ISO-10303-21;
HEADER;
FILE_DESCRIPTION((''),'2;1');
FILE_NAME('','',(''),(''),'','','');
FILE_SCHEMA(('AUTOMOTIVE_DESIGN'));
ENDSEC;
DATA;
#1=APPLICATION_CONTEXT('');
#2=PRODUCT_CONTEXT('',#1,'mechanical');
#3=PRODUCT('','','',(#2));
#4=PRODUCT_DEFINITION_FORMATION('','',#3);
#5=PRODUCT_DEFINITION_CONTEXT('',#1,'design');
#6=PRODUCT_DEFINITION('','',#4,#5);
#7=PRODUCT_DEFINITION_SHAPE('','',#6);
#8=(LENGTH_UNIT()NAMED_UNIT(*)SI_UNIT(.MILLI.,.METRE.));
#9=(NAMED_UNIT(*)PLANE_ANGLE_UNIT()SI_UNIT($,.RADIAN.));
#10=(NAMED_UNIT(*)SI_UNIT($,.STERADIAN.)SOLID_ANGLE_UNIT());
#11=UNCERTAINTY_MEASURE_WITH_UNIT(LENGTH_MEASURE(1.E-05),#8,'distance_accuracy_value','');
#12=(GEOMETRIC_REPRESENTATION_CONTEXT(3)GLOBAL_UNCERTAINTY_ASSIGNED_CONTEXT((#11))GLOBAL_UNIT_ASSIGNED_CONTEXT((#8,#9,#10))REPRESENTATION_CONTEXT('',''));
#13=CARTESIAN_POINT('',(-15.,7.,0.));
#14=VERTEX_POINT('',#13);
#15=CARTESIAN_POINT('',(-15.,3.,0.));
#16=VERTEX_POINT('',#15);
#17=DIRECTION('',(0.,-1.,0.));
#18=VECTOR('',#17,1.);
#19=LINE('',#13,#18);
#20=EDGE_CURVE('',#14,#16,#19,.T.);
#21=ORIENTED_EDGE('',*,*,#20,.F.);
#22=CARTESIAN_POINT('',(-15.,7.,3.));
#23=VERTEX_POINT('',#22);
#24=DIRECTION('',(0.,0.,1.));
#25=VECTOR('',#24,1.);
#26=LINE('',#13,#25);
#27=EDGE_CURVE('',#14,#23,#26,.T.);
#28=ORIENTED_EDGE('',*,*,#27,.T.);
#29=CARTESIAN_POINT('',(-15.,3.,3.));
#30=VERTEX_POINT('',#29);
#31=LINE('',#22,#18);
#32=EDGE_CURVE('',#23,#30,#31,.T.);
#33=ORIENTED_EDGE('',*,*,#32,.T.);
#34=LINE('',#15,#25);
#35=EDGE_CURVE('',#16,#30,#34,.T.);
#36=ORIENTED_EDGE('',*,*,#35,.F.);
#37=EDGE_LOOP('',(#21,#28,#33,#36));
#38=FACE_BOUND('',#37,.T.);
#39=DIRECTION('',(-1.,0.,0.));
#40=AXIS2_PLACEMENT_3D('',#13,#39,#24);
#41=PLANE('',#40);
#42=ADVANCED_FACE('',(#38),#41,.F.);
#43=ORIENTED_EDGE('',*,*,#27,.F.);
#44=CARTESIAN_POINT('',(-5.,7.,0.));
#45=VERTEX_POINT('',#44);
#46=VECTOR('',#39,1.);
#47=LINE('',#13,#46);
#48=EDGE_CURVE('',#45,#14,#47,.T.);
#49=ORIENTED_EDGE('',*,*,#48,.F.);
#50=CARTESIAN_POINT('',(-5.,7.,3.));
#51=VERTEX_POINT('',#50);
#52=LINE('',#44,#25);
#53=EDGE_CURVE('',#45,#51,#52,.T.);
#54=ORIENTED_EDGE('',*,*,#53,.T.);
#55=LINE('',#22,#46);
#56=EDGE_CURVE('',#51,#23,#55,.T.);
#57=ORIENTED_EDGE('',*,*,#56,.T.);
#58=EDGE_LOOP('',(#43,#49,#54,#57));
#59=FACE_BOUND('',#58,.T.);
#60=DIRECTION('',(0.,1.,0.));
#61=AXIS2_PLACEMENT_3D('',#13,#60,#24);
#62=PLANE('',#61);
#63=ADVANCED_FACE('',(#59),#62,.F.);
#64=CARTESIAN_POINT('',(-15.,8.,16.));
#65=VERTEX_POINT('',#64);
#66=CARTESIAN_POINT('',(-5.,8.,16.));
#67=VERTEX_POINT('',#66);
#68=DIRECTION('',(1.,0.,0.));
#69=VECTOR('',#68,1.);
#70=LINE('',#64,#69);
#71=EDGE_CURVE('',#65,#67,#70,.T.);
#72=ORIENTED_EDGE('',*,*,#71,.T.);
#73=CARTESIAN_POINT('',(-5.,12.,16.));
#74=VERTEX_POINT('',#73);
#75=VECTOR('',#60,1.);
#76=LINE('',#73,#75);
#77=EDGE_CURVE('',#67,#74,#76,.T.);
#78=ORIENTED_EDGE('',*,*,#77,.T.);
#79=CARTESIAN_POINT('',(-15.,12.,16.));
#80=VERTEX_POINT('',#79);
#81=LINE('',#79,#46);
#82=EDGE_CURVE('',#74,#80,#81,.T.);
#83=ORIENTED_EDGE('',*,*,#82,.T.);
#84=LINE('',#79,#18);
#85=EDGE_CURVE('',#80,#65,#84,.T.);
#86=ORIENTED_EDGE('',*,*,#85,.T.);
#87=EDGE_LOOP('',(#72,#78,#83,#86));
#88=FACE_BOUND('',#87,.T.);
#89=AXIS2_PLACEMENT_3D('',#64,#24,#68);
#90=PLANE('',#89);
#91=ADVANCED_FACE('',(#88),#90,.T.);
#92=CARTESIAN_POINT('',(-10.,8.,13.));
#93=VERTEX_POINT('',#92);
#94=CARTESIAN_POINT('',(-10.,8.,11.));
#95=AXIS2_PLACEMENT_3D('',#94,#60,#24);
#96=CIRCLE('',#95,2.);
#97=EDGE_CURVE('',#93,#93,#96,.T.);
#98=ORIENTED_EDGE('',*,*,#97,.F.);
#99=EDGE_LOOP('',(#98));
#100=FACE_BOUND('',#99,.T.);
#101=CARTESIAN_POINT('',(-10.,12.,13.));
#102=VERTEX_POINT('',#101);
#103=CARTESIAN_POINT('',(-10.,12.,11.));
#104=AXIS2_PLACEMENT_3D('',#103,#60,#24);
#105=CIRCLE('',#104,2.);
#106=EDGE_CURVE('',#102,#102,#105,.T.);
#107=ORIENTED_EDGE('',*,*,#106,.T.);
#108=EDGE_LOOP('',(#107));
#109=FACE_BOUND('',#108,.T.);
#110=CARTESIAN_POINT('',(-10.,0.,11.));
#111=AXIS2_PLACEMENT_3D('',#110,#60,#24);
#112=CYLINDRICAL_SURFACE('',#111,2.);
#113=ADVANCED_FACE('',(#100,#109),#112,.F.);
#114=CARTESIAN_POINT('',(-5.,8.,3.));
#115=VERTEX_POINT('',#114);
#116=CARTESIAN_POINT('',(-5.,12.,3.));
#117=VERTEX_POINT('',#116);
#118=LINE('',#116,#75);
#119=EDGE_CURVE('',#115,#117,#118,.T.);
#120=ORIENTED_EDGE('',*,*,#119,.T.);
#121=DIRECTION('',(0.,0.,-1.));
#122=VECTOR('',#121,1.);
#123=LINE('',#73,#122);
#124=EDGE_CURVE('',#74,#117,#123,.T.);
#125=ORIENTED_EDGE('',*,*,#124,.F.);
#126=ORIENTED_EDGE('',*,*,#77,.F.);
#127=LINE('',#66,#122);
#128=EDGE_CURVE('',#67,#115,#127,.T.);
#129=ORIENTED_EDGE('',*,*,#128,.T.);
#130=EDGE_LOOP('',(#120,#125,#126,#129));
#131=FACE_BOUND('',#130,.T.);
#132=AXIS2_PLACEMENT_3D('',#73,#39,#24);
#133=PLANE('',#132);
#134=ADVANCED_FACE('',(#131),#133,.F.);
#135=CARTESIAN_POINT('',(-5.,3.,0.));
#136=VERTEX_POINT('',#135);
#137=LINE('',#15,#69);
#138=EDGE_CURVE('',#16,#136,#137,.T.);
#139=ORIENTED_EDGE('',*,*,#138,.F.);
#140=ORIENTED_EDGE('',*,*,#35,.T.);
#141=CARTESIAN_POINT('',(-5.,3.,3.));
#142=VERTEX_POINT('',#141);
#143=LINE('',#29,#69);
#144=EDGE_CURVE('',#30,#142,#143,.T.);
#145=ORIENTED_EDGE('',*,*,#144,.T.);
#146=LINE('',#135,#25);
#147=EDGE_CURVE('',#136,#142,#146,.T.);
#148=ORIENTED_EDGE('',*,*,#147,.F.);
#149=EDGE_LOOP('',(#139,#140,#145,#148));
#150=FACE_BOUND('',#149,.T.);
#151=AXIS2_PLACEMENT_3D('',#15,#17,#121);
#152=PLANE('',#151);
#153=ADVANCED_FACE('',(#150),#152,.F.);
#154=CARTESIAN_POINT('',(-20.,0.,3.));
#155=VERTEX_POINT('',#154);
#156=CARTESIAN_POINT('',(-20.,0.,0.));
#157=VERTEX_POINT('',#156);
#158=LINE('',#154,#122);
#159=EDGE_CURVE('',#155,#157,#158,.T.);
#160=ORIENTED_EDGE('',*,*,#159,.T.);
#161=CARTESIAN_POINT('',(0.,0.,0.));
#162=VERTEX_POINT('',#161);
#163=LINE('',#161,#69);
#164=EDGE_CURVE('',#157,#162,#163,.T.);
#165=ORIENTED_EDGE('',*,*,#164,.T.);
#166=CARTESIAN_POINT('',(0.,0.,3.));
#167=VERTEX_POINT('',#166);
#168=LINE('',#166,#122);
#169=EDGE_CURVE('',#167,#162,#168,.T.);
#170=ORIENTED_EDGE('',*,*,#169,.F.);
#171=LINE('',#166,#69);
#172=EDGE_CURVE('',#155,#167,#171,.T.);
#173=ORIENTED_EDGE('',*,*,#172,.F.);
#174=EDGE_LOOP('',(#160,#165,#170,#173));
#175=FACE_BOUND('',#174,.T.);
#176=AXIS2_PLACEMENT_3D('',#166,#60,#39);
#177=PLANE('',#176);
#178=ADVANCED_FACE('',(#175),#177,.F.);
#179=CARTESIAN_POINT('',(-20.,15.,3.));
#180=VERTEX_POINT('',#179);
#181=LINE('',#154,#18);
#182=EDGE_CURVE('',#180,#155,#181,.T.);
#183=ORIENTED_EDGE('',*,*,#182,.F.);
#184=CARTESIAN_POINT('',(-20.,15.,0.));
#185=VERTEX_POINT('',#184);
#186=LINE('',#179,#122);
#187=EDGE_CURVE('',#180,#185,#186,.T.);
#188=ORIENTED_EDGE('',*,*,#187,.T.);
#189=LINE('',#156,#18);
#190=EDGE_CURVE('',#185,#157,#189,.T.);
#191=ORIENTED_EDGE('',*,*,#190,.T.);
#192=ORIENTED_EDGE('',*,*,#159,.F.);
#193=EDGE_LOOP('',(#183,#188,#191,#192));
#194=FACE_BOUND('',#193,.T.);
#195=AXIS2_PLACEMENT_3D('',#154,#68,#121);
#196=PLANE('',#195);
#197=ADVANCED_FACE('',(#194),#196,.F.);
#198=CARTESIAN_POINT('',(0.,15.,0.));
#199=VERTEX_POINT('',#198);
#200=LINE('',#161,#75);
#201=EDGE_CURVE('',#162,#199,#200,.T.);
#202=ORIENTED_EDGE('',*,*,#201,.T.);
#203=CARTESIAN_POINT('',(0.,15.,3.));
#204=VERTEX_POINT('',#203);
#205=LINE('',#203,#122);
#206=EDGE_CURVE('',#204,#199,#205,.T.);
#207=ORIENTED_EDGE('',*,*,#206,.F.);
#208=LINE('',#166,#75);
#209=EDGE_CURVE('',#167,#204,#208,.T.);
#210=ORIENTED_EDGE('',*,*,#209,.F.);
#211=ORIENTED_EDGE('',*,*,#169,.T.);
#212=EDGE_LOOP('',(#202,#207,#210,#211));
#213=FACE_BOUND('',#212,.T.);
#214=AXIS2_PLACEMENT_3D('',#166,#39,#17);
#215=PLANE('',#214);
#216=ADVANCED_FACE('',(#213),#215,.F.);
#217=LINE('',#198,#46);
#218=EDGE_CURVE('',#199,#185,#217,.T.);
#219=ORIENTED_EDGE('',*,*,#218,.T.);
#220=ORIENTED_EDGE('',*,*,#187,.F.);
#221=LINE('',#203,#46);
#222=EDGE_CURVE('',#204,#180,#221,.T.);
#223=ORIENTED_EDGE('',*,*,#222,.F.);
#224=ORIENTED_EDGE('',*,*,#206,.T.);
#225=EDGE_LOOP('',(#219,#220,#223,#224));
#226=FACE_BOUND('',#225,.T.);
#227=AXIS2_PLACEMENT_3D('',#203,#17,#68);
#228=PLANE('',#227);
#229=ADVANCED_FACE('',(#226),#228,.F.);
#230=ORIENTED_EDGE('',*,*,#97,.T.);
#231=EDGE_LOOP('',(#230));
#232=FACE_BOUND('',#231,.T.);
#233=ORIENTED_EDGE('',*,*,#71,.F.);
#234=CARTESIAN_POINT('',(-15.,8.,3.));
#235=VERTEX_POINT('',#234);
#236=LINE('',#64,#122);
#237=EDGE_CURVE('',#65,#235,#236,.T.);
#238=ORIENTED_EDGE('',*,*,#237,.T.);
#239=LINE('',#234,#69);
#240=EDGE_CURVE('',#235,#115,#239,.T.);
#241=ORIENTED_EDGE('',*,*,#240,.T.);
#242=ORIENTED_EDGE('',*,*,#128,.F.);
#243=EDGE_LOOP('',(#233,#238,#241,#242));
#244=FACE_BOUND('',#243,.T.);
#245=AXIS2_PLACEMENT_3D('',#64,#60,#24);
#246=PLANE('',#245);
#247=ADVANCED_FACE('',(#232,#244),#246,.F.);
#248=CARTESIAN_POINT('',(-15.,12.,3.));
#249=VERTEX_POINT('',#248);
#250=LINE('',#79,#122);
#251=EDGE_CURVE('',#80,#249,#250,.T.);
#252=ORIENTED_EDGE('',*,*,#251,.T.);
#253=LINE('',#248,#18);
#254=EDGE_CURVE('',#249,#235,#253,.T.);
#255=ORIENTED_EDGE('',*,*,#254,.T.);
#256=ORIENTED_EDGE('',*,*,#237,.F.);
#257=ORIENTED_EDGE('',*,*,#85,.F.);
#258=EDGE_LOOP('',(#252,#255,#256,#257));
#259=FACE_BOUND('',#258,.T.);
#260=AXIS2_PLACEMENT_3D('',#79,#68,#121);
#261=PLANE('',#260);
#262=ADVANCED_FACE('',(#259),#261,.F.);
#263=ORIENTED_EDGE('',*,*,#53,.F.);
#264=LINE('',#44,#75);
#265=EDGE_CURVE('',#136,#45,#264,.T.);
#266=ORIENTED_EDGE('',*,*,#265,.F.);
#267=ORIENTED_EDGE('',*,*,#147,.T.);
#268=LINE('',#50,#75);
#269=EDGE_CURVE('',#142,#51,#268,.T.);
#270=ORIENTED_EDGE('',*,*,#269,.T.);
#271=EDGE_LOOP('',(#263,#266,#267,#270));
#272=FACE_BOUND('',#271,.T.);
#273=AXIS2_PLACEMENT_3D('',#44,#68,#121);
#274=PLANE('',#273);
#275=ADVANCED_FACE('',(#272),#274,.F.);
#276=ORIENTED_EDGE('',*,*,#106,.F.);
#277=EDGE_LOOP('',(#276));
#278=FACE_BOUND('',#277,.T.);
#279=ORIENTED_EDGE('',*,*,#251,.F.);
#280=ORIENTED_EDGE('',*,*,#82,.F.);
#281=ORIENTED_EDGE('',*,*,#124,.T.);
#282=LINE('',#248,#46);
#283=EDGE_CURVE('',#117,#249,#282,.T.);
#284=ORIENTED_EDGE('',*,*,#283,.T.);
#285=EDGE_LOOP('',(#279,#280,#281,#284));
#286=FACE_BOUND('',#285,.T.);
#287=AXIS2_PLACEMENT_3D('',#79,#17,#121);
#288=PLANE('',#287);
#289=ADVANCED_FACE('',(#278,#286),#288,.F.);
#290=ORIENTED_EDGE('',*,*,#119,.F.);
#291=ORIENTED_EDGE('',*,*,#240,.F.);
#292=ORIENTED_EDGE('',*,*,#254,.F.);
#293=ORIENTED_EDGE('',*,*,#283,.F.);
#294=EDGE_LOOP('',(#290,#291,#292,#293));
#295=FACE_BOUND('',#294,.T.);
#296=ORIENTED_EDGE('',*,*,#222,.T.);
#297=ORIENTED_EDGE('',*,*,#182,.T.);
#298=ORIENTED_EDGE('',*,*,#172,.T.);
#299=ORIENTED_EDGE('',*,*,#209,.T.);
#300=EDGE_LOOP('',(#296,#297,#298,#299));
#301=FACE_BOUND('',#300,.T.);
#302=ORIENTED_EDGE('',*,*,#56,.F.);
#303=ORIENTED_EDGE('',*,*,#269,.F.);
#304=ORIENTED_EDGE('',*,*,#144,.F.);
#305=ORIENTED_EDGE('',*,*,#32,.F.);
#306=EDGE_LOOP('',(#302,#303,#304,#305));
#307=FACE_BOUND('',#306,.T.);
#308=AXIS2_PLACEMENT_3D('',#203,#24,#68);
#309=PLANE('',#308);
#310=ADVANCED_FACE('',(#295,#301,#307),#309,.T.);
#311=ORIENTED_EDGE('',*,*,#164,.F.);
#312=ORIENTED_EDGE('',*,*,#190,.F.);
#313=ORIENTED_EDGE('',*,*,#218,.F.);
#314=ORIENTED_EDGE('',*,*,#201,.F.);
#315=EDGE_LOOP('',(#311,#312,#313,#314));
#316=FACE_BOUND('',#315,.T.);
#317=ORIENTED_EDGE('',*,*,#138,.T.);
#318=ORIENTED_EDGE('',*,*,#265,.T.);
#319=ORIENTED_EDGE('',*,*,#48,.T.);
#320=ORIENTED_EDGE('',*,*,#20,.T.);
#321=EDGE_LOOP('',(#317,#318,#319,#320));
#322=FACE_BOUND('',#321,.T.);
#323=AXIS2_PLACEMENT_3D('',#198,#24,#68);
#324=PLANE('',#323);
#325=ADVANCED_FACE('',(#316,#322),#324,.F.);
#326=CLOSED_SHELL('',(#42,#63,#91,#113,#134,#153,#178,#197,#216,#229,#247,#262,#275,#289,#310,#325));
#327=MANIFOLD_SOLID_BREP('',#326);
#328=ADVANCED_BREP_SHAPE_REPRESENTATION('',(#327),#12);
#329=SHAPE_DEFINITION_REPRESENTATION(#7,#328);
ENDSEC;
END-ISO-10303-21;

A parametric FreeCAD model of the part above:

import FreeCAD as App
import Part
import Sketcher


def add_polygon(sketch, points):
    """Adds a closed chain of lines whose ends are joined by coincident constraints."""
    first, n = sketch.GeometryCount, len(points)
    for a, b in zip(points, points[1:] + points[:1]):
        sketch.addGeometry(Part.LineSegment(App.Vector(*a, 0), App.Vector(*b, 0)), False)
    for i in range(n):
        sketch.addConstraint(Sketcher.Constraint("Coincident", first + i, 2, first + (i + 1) % n, 1))

doc = App.newDocument("Part")
body = doc.addObject("PartDesign::Body", "Body")

sketch1 = body.newObject("Sketcher::SketchObject", "Sketch")
sketch1.AttachmentSupport = (doc.getObject("XY_Plane"), [""])
sketch1.MapMode = "FlatFace"
add_polygon(sketch1, [(-20, 15), (-20, 0), (0, 0), (0, 15)])
sketch1.addConstraint(Sketcher.Constraint("Vertical", 0))
sketch1.addConstraint(Sketcher.Constraint("Horizontal", 1))
sketch1.addConstraint(Sketcher.Constraint("Vertical", 2))
sketch1.addConstraint(Sketcher.Constraint("Horizontal", 3))
sketch1.addConstraint(Sketcher.Constraint("Coincident", 1, 2, -1, 1))
sketch1.addConstraint(Sketcher.Constraint("DistanceX", 1, 1, 1, 2, 20.0))
sketch1.addConstraint(Sketcher.Constraint("DistanceY", 0, 2, 0, 1, 15.0))
pad1 = body.newObject("PartDesign::Pad", "Pad")
pad1.Profile = sketch1
pad1.Length = 3

sketch2 = body.newObject("Sketcher::SketchObject", "Sketch001")
sketch2.AttachmentSupport = (doc.getObject("XY_Plane"), [""])
sketch2.MapMode = "FlatFace"
sketch2.AttachmentOffset = App.Placement(App.Vector(0, 0, 3), App.Rotation())
add_polygon(sketch2, [(-15, 12), (-15, 8), (-5, 8), (-5, 12)])
sketch2.addConstraint(Sketcher.Constraint("Vertical", 0))
sketch2.addConstraint(Sketcher.Constraint("Horizontal", 1))
sketch2.addConstraint(Sketcher.Constraint("Vertical", 2))
sketch2.addConstraint(Sketcher.Constraint("Horizontal", 3))
sketch2.addConstraint(Sketcher.Constraint("DistanceX", 1, 1, 1, 2, 10.0))
sketch2.addConstraint(Sketcher.Constraint("DistanceY", 0, 2, 0, 1, 4.0))
sketch2.addConstraint(Sketcher.Constraint("DistanceX", 0, 2, -1, 1, 15.0))
sketch2.addConstraint(Sketcher.Constraint("DistanceY", -1, 1, 0, 2, 8.0))
pad2 = body.newObject("PartDesign::Pad", "Pad001")
pad2.Profile = sketch2
pad2.Length = 13

sketch3 = body.newObject("Sketcher::SketchObject", "Sketch002")
sketch3.AttachmentSupport = (doc.getObject("XY_Plane"), [""])
sketch3.MapMode = "FlatFace"
sketch3.AttachmentOffset = App.Placement(App.Vector(0, 0, 3), App.Rotation())
add_polygon(sketch3, [(-15, 7), (-15, 3), (-5, 3), (-5, 7)])
sketch3.addConstraint(Sketcher.Constraint("Vertical", 0))
sketch3.addConstraint(Sketcher.Constraint("Horizontal", 1))
sketch3.addConstraint(Sketcher.Constraint("Vertical", 2))
sketch3.addConstraint(Sketcher.Constraint("Horizontal", 3))
sketch3.addConstraint(Sketcher.Constraint("DistanceX", 1, 1, 1, 2, 10.0))
sketch3.addConstraint(Sketcher.Constraint("DistanceY", 0, 2, 0, 1, 4.0))
sketch3.addConstraint(Sketcher.Constraint("DistanceX", 0, 2, -1, 1, 15.0))
sketch3.addConstraint(Sketcher.Constraint("DistanceY", -1, 1, 0, 2, 3.0))
pocket1 = body.newObject("PartDesign::Pocket", "Pocket")
pocket1.Profile = sketch3
pocket1.Type = "ThroughAll"

sketch4 = body.newObject("Sketcher::SketchObject", "Sketch003")
sketch4.AttachmentSupport = (doc.getObject("XZ_Plane"), [""])
sketch4.MapMode = "FlatFace"
sketch4.AttachmentOffset = App.Placement(App.Vector(0, 0, -12), App.Rotation())
sketch4.addGeometry(Part.Circle(App.Vector(-10, 11, 0), App.Vector(0, 0, 1), 2), False)
sketch4.addConstraint(Sketcher.Constraint("Diameter", 0, 4.0))
sketch4.addConstraint(Sketcher.Constraint("DistanceX", 0, 3, -1, 1, 10.0))
sketch4.addConstraint(Sketcher.Constraint("DistanceY", -1, 1, 0, 3, 11.0))
pocket2 = body.newObject("PartDesign::Pocket", "Pocket001")
pocket2.Profile = sketch4
pocket2.Type = "ThroughAll"
pocket2.Reversed = True

doc.recompute()
